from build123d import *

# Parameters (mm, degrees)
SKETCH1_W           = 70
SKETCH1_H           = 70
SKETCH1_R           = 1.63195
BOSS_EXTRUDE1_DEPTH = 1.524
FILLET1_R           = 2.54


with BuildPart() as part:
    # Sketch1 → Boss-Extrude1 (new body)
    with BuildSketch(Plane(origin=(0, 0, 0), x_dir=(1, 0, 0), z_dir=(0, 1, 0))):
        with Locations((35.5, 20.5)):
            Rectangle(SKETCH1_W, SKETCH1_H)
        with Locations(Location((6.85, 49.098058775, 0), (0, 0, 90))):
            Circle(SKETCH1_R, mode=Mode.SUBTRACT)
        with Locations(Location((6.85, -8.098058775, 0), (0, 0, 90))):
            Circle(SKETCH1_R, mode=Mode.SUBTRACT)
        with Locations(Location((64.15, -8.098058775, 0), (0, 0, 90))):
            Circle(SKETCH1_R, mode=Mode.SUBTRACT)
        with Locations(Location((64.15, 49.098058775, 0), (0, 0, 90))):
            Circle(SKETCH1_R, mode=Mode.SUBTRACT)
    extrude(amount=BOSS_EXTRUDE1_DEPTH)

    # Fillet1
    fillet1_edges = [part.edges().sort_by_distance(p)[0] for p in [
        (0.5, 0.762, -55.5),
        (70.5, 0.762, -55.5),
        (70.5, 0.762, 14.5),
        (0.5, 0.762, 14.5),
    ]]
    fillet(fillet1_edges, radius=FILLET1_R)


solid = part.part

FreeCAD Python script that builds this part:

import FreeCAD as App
import Part
import Sketcher

V = App.Vector
Q = App.Units.Quantity


def edges_at(feature, points):
    """Names of the edges that pass closest to the given points."""
    edges = feature.Shape.Edges
    near = lambda p: min(range(len(edges)), key=lambda i: edges[i].distToShape(Part.Vertex(*p))[0])
    return sorted({f"Edge{near(p) + 1}" for p in points})

doc = App.newDocument("Part")
params = doc.addObject("Spreadsheet::Sheet", "Params")
for row, (alias, value) in enumerate([
    ("pad1_length", "0.06 in"),
    ("fillet_radius", "0.1 in"),
], start=1):
    params.set(f"A{row}", alias)
    params.set(f"B{row}", "=" + value)
    params.setAlias(f"B{row}", alias)

body = doc.addObject("PartDesign::Body", "Body")

# Sketch on XZ plane
sketch1 = doc.addObject("Sketcher::SketchObject", "Sketch")
body.addObject(sketch1)
sketch1.AttachmentSupport = (doc.XZ_Plane, [""])
sketch1.MapMode = "FlatFace"
sketch1.addGeometry([
    Part.LineSegment(V(0.5, -55.5, 0), V(0.5, 14.5, 0)),  # 0
    Part.LineSegment(V(0.5, 14.5, 0), V(70.5, 14.5, 0)),  # 1
    Part.LineSegment(V(70.5, 14.5, 0), V(70.5, -55.5, 0)),  # 2
    Part.LineSegment(V(70.5, -55.5, 0), V(0.5, -55.5, 0)),  # 3
    Part.Circle(V(6.8, 8.1, 0), V(0, 0, 1), 1.6),  # 4
    Part.Circle(V(64.2, 8.1, 0), V(0, 0, 1), 1.6),  # 5
    Part.Circle(V(6.8, -49.1, 0), V(0, 0, 1), 1.6),  # 6
    Part.Circle(V(64.2, -49.1, 0), V(0, 0, 1), 1.6),  # 7
], False)
sketch1.addConstraint([
    Sketcher.Constraint("Coincident", 0, 2, 1, 1),
    Sketcher.Constraint("Coincident", 1, 2, 2, 1),
    Sketcher.Constraint("Coincident", 2, 2, 3, 1),
    Sketcher.Constraint("Coincident", 3, 2, 0, 1),
    Sketcher.Constraint("Vertical", 0),
    Sketcher.Constraint("Horizontal", 1),
    Sketcher.Constraint("Vertical", 2),
    Sketcher.Constraint("Horizontal", 3),
    Sketcher.Constraint("Equal", 4, 5),
    Sketcher.Constraint("Equal", 5, 6),
    Sketcher.Constraint("Equal", 6, 7),
    Sketcher.Constraint("Horizontal", 4, 3, 5, 3),
    Sketcher.Constraint("Horizontal", 6, 3, 7, 3),
    Sketcher.Constraint("Vertical", 4, 3, 6, 3),
    Sketcher.Constraint("Vertical", 5, 3, 7, 3),
    Sketcher.Constraint("Equal", 3, 0),
    Sketcher.Constraint("Diameter", 4, Q("0.1285 in")),
    Sketcher.Constraint("DistanceX", 0, 2, 4, 3, Q("0.25 in")),
    Sketcher.Constraint("DistanceX", 5, 3, 1, 2, Q("0.25 in")),
    Sketcher.Constraint("DistanceX", 1, 1, 1, 2, Q("70 mm")),
    Sketcher.Constraint("DistanceX", -1, 1, 4, 3, Q("6.85 mm")),
    Sketcher.Constraint("DistanceY", -1, 1, 0, 2, Q("14.5 mm")),
    Sketcher.Constraint("DistanceY", -1, 1, 4, 3, Q("8.098059 mm")),
    Sketcher.Constraint("DistanceY", 6, 3, -1, 1, Q("49.098059 mm")),
])
pad1 = doc.addObject("PartDesign::Pad", "Pad")
body.addObject(pad1)
pad1.Profile = sketch1
pad1.setExpression("Length", "Params.pad1_length")
pad1.Reversed = True
doc.recompute()

fillet = doc.addObject("PartDesign::Fillet", "Fillet")
body.addObject(fillet)
fillet.Base = (pad1, edges_at(pad1, [
    (0.5, 0.762, -55.5),
    (70.5, 0.762, -55.5),
    (70.5, 0.762, 14.5),
    (0.5, 0.762, 14.5),
]))
fillet.setExpression("Radius", "Params.fillet_radius")

doc.recompute()
